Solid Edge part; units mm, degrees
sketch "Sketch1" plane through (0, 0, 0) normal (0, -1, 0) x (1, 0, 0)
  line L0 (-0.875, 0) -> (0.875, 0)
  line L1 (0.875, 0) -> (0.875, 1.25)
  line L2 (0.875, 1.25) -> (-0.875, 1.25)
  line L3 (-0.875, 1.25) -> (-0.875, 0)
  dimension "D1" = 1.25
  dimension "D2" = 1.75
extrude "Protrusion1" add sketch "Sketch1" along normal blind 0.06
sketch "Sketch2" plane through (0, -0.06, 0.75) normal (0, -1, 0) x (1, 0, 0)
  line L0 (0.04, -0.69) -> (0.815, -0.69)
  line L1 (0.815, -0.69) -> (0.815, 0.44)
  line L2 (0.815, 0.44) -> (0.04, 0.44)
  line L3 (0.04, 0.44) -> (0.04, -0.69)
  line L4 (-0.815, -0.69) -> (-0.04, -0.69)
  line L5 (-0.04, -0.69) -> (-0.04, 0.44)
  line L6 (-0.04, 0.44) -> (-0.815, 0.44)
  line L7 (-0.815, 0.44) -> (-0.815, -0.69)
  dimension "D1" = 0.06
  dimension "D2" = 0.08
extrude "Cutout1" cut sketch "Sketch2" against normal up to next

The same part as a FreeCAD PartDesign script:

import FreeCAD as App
import Part
import Sketcher
Q = App.Units.Quantity

doc = App.newDocument("Part")
body = doc.addObject("PartDesign::Body", "Body")

sketch1 = body.newObject("Sketcher::SketchObject", "Sketch")
sketch1.AttachmentSupport = (doc.getObject("XZ_Plane"), [""])
sketch1.MapMode = "FlatFace"
sketch1.addGeometry([
    Part.LineSegment(App.Vector(-0.9, 1.2, 0), App.Vector(-0.9, 0, 0)),
    Part.LineSegment(App.Vector(-0.9, 0, 0), App.Vector(0.9, 0, 0)),
    Part.LineSegment(App.Vector(0.9, 0, 0), App.Vector(0.9, 1.2, 0)),
    Part.LineSegment(App.Vector(0.9, 1.2, 0), App.Vector(-0.9, 1.2, 0)),
], False)
sketch1.addConstraint([
    Sketcher.Constraint("Coincident", 0, 2, 1, 1),
    Sketcher.Constraint("Coincident", 1, 2, 2, 1),
    Sketcher.Constraint("Coincident", 2, 2, 3, 1),
    Sketcher.Constraint("Coincident", 3, 2, 0, 1),
    Sketcher.Constraint("Vertical", 0),
    Sketcher.Constraint("Horizontal", 1),
    Sketcher.Constraint("Vertical", 2),
    Sketcher.Constraint("Horizontal", 3),
    Sketcher.Constraint("Symmetric", 0, 2, 1, 2, -1, 1),
    Sketcher.Constraint("DistanceX", 0, 2, -1, 1, Q("0.875 mm")),
    Sketcher.Constraint("DistanceY", 0, 2, 0, 1, Q("1.25 mm")),
])
pad1 = body.newObject("PartDesign::Pad", "Pad")
pad1.Profile = sketch1
pad1.Length = 0.06

sketch2 = body.newObject("Sketcher::SketchObject", "Sketch001")
sketch2.AttachmentSupport = (doc.getObject("XZ_Plane"), [""])
sketch2.MapMode = "FlatFace"
sketch2.AttachmentOffset = App.Placement(App.Vector(0, 0, 0.06), App.Rotation())
sketch2.addGeometry([
    Part.LineSegment(App.Vector(0.04, 1.19, 0), App.Vector(0.04, 0.06, 0)),
    Part.LineSegment(App.Vector(0.04, 0.06, 0), App.Vector(0.815, 0.06, 0)),
    Part.LineSegment(App.Vector(0.815, 0.06, 0), App.Vector(0.815, 1.19, 0)),
    Part.LineSegment(App.Vector(0.815, 1.19, 0), App.Vector(0.04, 1.19, 0)),
    Part.LineSegment(App.Vector(-0.815, 1.19, 0), App.Vector(-0.815, 0.06, 0)),
    Part.LineSegment(App.Vector(-0.815, 0.06, 0), App.Vector(-0.04, 0.06, 0)),
    Part.LineSegment(App.Vector(-0.04, 0.06, 0), App.Vector(-0.04, 1.19, 0)),
    Part.LineSegment(App.Vector(-0.04, 1.19, 0), App.Vector(-0.815, 1.19, 0)),
], False)
sketch2.addConstraint([
    Sketcher.Constraint("Coincident", 0, 2, 1, 1),
    Sketcher.Constraint("Coincident", 1, 2, 2, 1),
    Sketcher.Constraint("Coincident", 2, 2, 3, 1),
    Sketcher.Constraint("Coincident", 3, 2, 0, 1),
    Sketcher.Constraint("Coincident", 4, 2, 5, 1),
    Sketcher.Constraint("Coincident", 5, 2, 6, 1),
    Sketcher.Constraint("Coincident", 6, 2, 7, 1),
    Sketcher.Constraint("Coincident", 7, 2, 4, 1),
    Sketcher.Constraint("Vertical", 0),
    Sketcher.Constraint("Horizontal", 1),
    Sketcher.Constraint("Vertical", 2),
    Sketcher.Constraint("Horizontal", 3),
    Sketcher.Constraint("Vertical", 4),
    Sketcher.Constraint("Horizontal", 5),
    Sketcher.Constraint("Vertical", 6),
    Sketcher.Constraint("Horizontal", 7),
    Sketcher.Constraint("Symmetric", 1, 2, 4, 2, -2),
    Sketcher.Constraint("Symmetric", 3, 2, 6, 2, -2),
    Sketcher.Constraint("DistanceX", -1, 1, 0, 2, Q("0.04 mm")),
    Sketcher.Constraint("DistanceX", -1, 1, 1, 2, Q("0.815 mm")),
    Sketcher.Constraint("DistanceY", 0, 2, 0, 1, Q("1.13 mm")),
    Sketcher.Constraint("DistanceY", -1, 1, 0, 2, Q("0.06 mm")),
])
pocket1 = body.newObject("PartDesign::Pocket", "Pocket")
pocket1.Profile = sketch2
pocket1.Type = "UpToFirst"

doc.recompute()
